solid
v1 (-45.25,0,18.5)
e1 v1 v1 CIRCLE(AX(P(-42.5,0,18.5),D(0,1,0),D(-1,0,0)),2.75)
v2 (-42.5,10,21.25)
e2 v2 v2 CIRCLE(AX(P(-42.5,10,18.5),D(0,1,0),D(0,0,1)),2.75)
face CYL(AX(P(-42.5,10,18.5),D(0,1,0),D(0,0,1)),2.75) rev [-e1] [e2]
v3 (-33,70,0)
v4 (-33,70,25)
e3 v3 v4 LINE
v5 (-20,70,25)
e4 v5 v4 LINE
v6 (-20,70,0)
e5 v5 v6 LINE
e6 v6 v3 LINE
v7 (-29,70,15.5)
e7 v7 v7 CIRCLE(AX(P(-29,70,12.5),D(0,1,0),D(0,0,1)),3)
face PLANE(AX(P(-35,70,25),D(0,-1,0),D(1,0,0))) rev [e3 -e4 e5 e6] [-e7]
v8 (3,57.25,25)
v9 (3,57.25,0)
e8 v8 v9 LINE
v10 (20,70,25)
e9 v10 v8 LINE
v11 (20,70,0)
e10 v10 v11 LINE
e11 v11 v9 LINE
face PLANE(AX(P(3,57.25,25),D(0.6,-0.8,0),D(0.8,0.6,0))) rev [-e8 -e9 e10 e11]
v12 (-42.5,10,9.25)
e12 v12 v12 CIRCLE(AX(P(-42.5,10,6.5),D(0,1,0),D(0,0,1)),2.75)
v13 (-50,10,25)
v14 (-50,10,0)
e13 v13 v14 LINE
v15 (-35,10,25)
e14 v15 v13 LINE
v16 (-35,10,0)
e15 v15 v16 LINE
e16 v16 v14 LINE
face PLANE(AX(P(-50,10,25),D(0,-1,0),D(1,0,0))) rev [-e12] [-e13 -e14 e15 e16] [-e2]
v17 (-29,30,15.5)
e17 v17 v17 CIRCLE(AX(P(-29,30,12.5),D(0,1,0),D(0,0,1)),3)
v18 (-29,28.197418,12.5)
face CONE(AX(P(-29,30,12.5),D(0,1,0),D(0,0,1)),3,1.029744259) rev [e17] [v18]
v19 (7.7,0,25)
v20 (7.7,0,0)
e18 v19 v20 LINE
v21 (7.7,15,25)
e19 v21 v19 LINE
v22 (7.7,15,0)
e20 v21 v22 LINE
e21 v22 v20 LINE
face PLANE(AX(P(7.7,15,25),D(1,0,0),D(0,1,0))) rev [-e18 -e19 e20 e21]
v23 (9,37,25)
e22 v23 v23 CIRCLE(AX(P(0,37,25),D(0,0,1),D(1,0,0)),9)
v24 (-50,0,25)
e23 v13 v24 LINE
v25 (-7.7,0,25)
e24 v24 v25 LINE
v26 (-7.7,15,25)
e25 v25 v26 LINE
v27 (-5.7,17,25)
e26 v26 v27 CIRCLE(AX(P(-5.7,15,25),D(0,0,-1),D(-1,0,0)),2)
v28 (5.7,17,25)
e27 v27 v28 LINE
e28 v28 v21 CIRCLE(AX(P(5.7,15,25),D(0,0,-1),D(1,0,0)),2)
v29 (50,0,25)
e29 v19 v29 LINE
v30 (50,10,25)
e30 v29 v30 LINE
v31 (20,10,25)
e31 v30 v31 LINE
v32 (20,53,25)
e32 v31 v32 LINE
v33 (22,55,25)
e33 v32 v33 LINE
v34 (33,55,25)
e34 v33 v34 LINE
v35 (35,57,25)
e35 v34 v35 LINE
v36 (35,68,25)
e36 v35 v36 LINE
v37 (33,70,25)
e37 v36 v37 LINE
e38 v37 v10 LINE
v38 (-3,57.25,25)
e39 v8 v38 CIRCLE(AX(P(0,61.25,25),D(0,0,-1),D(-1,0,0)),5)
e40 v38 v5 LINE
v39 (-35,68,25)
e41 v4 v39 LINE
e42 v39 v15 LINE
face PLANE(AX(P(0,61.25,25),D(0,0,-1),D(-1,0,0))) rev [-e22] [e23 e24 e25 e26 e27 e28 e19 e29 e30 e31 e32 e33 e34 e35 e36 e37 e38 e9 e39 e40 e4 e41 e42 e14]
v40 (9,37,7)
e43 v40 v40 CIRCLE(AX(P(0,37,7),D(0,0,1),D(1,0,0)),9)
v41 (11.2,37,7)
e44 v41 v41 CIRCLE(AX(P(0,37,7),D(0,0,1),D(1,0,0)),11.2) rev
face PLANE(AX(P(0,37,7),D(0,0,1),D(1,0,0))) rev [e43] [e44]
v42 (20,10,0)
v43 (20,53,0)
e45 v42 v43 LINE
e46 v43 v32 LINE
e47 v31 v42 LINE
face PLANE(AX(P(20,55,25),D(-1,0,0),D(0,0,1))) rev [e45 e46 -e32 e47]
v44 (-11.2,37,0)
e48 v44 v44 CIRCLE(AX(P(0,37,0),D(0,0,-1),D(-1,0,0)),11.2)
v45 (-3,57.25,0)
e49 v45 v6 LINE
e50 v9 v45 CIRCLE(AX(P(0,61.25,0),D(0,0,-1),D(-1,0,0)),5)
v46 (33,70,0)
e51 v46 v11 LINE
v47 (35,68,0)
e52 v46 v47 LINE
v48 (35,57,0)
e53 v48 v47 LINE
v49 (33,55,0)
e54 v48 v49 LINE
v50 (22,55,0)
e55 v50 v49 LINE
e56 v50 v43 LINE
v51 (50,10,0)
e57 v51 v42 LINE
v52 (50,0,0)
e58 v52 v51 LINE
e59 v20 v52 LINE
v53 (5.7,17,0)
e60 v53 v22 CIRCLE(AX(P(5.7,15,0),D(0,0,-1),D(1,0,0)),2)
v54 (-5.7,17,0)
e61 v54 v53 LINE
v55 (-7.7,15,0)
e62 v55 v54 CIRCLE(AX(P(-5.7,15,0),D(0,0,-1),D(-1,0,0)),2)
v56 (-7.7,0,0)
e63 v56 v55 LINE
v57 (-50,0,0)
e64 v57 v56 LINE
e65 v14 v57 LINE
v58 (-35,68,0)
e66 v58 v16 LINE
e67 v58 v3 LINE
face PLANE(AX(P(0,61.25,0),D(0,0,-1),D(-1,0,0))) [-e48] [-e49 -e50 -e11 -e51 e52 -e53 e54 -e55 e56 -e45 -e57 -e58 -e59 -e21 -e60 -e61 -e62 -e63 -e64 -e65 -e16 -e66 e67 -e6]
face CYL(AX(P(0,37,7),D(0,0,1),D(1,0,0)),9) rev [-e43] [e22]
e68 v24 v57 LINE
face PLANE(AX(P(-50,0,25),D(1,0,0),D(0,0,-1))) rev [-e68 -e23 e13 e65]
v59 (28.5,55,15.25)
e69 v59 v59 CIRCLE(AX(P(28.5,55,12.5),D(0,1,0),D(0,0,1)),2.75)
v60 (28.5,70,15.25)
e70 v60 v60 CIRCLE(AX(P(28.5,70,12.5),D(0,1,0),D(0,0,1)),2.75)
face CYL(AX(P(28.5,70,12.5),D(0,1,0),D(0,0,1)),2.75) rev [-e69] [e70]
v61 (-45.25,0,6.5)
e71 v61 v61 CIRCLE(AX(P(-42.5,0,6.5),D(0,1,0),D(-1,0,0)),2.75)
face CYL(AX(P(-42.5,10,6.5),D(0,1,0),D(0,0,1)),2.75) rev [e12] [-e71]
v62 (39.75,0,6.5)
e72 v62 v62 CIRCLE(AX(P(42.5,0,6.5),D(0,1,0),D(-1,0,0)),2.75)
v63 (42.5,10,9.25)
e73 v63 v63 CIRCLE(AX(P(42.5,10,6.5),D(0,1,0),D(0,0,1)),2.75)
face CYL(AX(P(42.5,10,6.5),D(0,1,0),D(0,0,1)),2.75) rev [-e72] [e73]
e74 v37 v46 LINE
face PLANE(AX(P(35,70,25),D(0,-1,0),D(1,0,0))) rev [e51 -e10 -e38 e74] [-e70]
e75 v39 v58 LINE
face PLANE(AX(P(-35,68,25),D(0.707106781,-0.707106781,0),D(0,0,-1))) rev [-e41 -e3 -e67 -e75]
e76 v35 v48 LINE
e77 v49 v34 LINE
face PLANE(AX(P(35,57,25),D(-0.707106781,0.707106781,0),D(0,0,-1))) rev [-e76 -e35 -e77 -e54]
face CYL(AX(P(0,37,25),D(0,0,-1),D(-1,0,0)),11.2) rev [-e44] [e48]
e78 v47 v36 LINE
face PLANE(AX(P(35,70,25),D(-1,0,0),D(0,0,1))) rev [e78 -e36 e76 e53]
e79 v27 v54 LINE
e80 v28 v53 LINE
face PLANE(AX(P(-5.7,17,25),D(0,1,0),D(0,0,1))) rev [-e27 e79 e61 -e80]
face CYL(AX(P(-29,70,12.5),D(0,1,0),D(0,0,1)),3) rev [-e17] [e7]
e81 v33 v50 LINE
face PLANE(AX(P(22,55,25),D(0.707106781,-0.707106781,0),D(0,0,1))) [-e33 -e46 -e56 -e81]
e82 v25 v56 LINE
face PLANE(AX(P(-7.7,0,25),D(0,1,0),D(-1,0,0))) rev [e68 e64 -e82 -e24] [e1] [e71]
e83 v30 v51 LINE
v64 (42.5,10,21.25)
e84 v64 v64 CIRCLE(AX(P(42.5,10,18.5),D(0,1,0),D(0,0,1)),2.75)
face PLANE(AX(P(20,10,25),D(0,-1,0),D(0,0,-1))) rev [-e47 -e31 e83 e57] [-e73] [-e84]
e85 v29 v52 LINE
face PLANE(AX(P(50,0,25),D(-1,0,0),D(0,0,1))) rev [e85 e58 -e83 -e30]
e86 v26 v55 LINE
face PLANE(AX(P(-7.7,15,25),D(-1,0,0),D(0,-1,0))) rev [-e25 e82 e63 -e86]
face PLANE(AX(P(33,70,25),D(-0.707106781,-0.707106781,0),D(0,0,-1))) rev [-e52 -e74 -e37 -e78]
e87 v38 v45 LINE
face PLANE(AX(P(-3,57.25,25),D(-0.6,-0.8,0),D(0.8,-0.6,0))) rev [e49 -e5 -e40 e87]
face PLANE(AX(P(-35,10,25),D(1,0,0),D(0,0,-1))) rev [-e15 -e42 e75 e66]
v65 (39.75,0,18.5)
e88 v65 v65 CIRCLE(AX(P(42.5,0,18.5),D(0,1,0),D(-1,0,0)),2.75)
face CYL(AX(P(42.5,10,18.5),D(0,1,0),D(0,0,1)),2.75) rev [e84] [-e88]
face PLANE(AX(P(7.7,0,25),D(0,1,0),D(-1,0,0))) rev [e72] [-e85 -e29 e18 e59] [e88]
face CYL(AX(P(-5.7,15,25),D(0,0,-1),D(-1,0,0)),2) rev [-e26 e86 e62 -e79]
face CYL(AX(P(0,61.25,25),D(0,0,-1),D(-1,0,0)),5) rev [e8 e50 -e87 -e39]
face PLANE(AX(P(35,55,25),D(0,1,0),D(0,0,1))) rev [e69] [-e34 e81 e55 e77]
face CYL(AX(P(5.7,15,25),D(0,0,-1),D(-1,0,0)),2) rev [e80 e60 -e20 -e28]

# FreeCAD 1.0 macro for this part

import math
import FreeCAD as App
import Part
import Sketcher
Q = App.Units.Quantity


def edges_at(feature, points):
    """Names of the edges that pass closest to the given points."""
    edges = feature.Shape.Edges
    near = lambda p: min(range(len(edges)), key=lambda i: edges[i].distToShape(Part.Vertex(*p))[0])
    return sorted({f"Edge{near(p) + 1}" for p in points})

doc = App.newDocument("Part")
body = doc.addObject("PartDesign::Body", "Body")

sketch1 = doc.addObject("Sketcher::SketchObject", "Sketch")
body.addObject(sketch1)
sketch1.AttachmentSupport = (doc.XY_Plane, [""])
sketch1.MapMode = "FlatFace"
sketch1.addGeometry(Part.LineSegment(App.Vector(50, 0, 0), App.Vector(50, 10, 0)), False)
sketch1.addGeometry(Part.LineSegment(App.Vector(50, 10, 0), App.Vector(20, 10, 0)), False)
sketch1.addGeometry(Part.LineSegment(App.Vector(20, 10, 0), App.Vector(20, 55, 0)), False)
sketch1.addGeometry(Part.LineSegment(App.Vector(20, 55, 0), App.Vector(35, 55, 0)), False)
sketch1.addGeometry(Part.LineSegment(App.Vector(35, 55, 0), App.Vector(35, 70, 0)), False)
sketch1.addGeometry(Part.LineSegment(App.Vector(35, 70, 0), App.Vector(20, 70, 0)), False)
sketch1.addGeometry(Part.LineSegment(App.Vector(20, 70, 0), App.Vector(3, 57.2, 0)), False)
sketch1.addGeometry(Part.ArcOfCircle(Part.Circle(App.Vector(0, 61.2, 0), App.Vector(0, 0, 1), 5), math.radians(-127), math.radians(-53)), False)
sketch1.addGeometry(Part.LineSegment(App.Vector(-3, 57.2, 0), App.Vector(-20, 70, 0)), False)
sketch1.addGeometry(Part.LineSegment(App.Vector(-20, 70, 0), App.Vector(-35, 70, 0)), False)
sketch1.addGeometry(Part.LineSegment(App.Vector(-35, 70, 0), App.Vector(-35, 10, 0)), False)
sketch1.addGeometry(Part.LineSegment(App.Vector(-35, 10, 0), App.Vector(-50, 10, 0)), False)
sketch1.addGeometry(Part.LineSegment(App.Vector(-50, 10, 0), App.Vector(-50, 0, 0)), False)
sketch1.addGeometry(Part.LineSegment(App.Vector(-50, 0, 0), App.Vector(-7.7, 0, 0)), False)
sketch1.addGeometry(Part.LineSegment(App.Vector(-7.7, 0, 0), App.Vector(-7.7, 15, 0)), False)
sketch1.addGeometry(Part.ArcOfCircle(Part.Circle(App.Vector(-5.7, 15, 0), App.Vector(0, 0, 1), 2), math.radians(90), math.radians(180)), False)
sketch1.addGeometry(Part.LineSegment(App.Vector(-5.7, 17, 0), App.Vector(5.7, 17, 0)), False)
sketch1.addGeometry(Part.ArcOfCircle(Part.Circle(App.Vector(5.7, 15, 0), App.Vector(0, 0, 1), 2), math.radians(0), math.radians(90)), False)
sketch1.addGeometry(Part.LineSegment(App.Vector(7.7, 15, 0), App.Vector(7.7, 0, 0)), False)
sketch1.addGeometry(Part.LineSegment(App.Vector(7.7, 0, 0), App.Vector(50, 0, 0)), False)
sketch1.addConstraint(Sketcher.Constraint("Coincident", 0, 2, 1, 1))
sketch1.addConstraint(Sketcher.Constraint("Coincident", 1, 2, 2, 1))
sketch1.addConstraint(Sketcher.Constraint("Coincident", 2, 2, 3, 1))
sketch1.addConstraint(Sketcher.Constraint("Coincident", 3, 2, 4, 1))
sketch1.addConstraint(Sketcher.Constraint("Coincident", 4, 2, 5, 1))
sketch1.addConstraint(Sketcher.Constraint("Coincident", 5, 2, 6, 1))
sketch1.addConstraint(Sketcher.Constraint("Tangent", 6, 2, 7, 2))
sketch1.addConstraint(Sketcher.Constraint("Tangent", 7, 1, 8, 1))
sketch1.addConstraint(Sketcher.Constraint("Coincident", 8, 2, 9, 1))
sketch1.addConstraint(Sketcher.Constraint("Coincident", 9, 2, 10, 1))
sketch1.addConstraint(Sketcher.Constraint("Coincident", 10, 2, 11, 1))
sketch1.addConstraint(Sketcher.Constraint("Coincident", 11, 2, 12, 1))
sketch1.addConstraint(Sketcher.Constraint("Coincident", 12, 2, 13, 1))
sketch1.addConstraint(Sketcher.Constraint("Coincident", 13, 2, 14, 1))
sketch1.addConstraint(Sketcher.Constraint("Tangent", 14, 2, 15, 2))
sketch1.addConstraint(Sketcher.Constraint("Tangent", 15, 1, 16, 1))
sketch1.addConstraint(Sketcher.Constraint("Tangent", 16, 2, 17, 2))
sketch1.addConstraint(Sketcher.Constraint("Tangent", 17, 1, 18, 1))
sketch1.addConstraint(Sketcher.Constraint("Coincident", 18, 2, 19, 1))
sketch1.addConstraint(Sketcher.Constraint("Coincident", 19, 2, 0, 1))
sketch1.addConstraint(Sketcher.Constraint("Vertical", 0))
sketch1.addConstraint(Sketcher.Constraint("Horizontal", 1))
sketch1.addConstraint(Sketcher.Constraint("Vertical", 2))
sketch1.addConstraint(Sketcher.Constraint("Horizontal", 3))
sketch1.addConstraint(Sketcher.Constraint("Vertical", 4))
sketch1.addConstraint(Sketcher.Constraint("Horizontal", 5))
sketch1.addConstraint(Sketcher.Constraint("Horizontal", 9))
sketch1.addConstraint(Sketcher.Constraint("Vertical", 10))
sketch1.addConstraint(Sketcher.Constraint("Horizontal", 11))
sketch1.addConstraint(Sketcher.Constraint("Vertical", 12))
sketch1.addConstraint(Sketcher.Constraint("Horizontal", 13))
sketch1.addConstraint(Sketcher.Constraint("Vertical", 14))
sketch1.addConstraint(Sketcher.Constraint("Horizontal", 16))
sketch1.addConstraint(Sketcher.Constraint("Vertical", 18))
sketch1.addConstraint(Sketcher.Constraint("Horizontal", 19))
sketch1.addConstraint(Sketcher.Constraint("Equal", 15, 17))
sketch1.addConstraint(Sketcher.Constraint("Symmetric", 13, 2, 18, 2, -1, 1))
sketch1.addConstraint(Sketcher.Constraint("Symmetric", 6, 2, 7, 1, -2))
sketch1.addConstraint(Sketcher.Constraint("Symmetric", 4, 2, 9, 2, -2))
sketch1.addConstraint(Sketcher.Constraint("Symmetric", 0, 2, 11, 2, -2))
sketch1.addConstraint(Sketcher.Constraint("PointOnObject", 12, 2, -1))
sketch1.addConstraint(Sketcher.Constraint("Vertical", 2, 2, 5, 2))
sketch1.addConstraint(Sketcher.Constraint("Equal", 9, 11))
sketch1.addConstraint(Sketcher.Constraint("Equal", 11, 4))
sketch1.addConstraint(Sketcher.Constraint("Equal", 4, 14))
sketch1.addConstraint(Sketcher.Constraint("Radius", 7, Q("5 mm")))
sketch1.addConstraint(Sketcher.Constraint("Radius", 15, Q("2 mm")))
sketch1.addConstraint(Sketcher.Constraint("DistanceX", 1, 2, 1, 1, Q("30 mm")))
sketch1.addConstraint(Sketcher.Constraint("DistanceY", 0, 1, 0, 2, Q("10 mm")))
sketch1.addConstraint(Sketcher.Constraint("DistanceY", 2, 1, 2, 2, Q("45 mm")))
sketch1.addConstraint(Sketcher.Constraint("DistanceX", 13, 1, 13, 2, Q("42.3 mm")))
sketch1.addConstraint(Sketcher.Constraint("DistanceX", 16, 1, 16, 2, Q("11.4 mm")))
sketch1.addConstraint(Sketcher.Constraint("DistanceX", -1, 1, 6, 2, Q("3 mm")))
pad1 = doc.addObject("PartDesign::Pad", "Pad")
body.addObject(pad1)
pad1.Profile = sketch1
pad1.Length = 25

sketch2 = doc.addObject("Sketcher::SketchObject", "Sketch001")
body.addObject(sketch2)
sketch2.AttachmentSupport = (doc.XY_Plane, [""])
sketch2.MapMode = "FlatFace"
sketch2.addGeometry(Part.Circle(App.Vector(0, 37, 0), App.Vector(0, 0, 1), 11), False)
sketch2.addConstraint(Sketcher.Constraint("PointOnObject", 0, 3, -2))
sketch2.addConstraint(Sketcher.Constraint("Diameter", 0, Q("22.4 mm")))
sketch2.addConstraint(Sketcher.Constraint("DistanceY", -1, 1, 0, 3, Q("37 mm")))
pocket1 = doc.addObject("PartDesign::Pocket", "Pocket")
body.addObject(pocket1)
pocket1.Profile = sketch2
pocket1.Type = "ThroughAll"
pocket1.Reversed = True
doc.recompute()

chamfer = doc.addObject("PartDesign::Chamfer", "Chamfer")
body.addObject(chamfer)
chamfer.Base = (pocket1, edges_at(pocket1, [
    (-35, 70, 12.5),
    (35, 70, 12.5),
    (35, 55, 12.5),
    (20, 55, 12.5),
]))
chamfer.Size = 2

sketch3 = doc.addObject("Sketcher::SketchObject", "Sketch002")
body.addObject(sketch3)
sketch3.AttachmentSupport = (doc.XY_Plane, [""])
sketch3.MapMode = "FlatFace"
sketch3.AttachmentOffset = App.Placement(App.Vector(0, 0, 25), App.Rotation())
sketch3.addGeometry(Part.Circle(App.Vector(0, 37, 0), App.Vector(0, 0, 1), 11), False)
sketch3.addGeometry(Part.Circle(App.Vector(0, 37, 0), App.Vector(0, 0, 1), 9), False)
sketch3.addConstraint(Sketcher.Constraint("Coincident", 1, 3, 0, 3))
sketch3.addConstraint(Sketcher.Constraint("PointOnObject", 0, 3, -2))
sketch3.addConstraint(Sketcher.Constraint("Diameter", 1, Q("18 mm")))
sketch3.addConstraint(Sketcher.Constraint("Diameter", 0, Q("22.8 mm")))
sketch3.addConstraint(Sketcher.Constraint("DistanceY", -1, 1, 0, 3, Q("37 mm")))
pad2 = doc.addObject("PartDesign::Pad", "Pad001")
body.addObject(pad2)
pad2.Profile = sketch3
pad2.Length = 18
pad2.Reversed = True

sketch4 = doc.addObject("Sketcher::SketchObject", "Sketch003")
body.addObject(sketch4)
sketch4.AttachmentSupport = (doc.XZ_Plane, [""])
sketch4.MapMode = "FlatFace"
sketch4.AttachmentOffset = App.Placement(App.Vector(0, 0, -10), App.Rotation())
sketch4.addGeometry(Part.Circle(App.Vector(42.5, 18.5, 0), App.Vector(0, 0, 1), 2.8), False)
sketch4.addGeometry(Part.Circle(App.Vector(42.5, 6.5, 0), App.Vector(0, 0, 1), 2.8), False)
sketch4.addGeometry(Part.Circle(App.Vector(-42.5, 18.5, 0), App.Vector(0, 0, 1), 2.8), False)
sketch4.addGeometry(Part.Circle(App.Vector(-42.5, 6.5, 0), App.Vector(0, 0, 1), 2.8), False)
sketch4.addConstraint(Sketcher.Constraint("Equal", 0, 1))
sketch4.addConstraint(Sketcher.Constraint("Equal", 1, 2))
sketch4.addConstraint(Sketcher.Constraint("Equal", 2, 3))
sketch4.addConstraint(Sketcher.Constraint("Symmetric", 0, 3, 2, 3, -2))
sketch4.addConstraint(Sketcher.Constraint("Symmetric", 1, 3, 3, 3, -2))
sketch4.addConstraint(Sketcher.Constraint("Vertical", 0, 3, 1, 3))
sketch4.addConstraint(Sketcher.Constraint("Diameter", 0, Q("5.5 mm")))
sketch4.addConstraint(Sketcher.Constraint("DistanceY", 1, 3, 0, 3, Q("12 mm")))
sketch4.addConstraint(Sketcher.Constraint("DistanceX", 2, 3, 0, 3, Q("85 mm")))
sketch4.addConstraint(Sketcher.Constraint("DistanceY", -1, 1, 0, 3, Q("18.5 mm")))
doc.recompute()
hole = doc.addObject("PartDesign::Hole", "Hole")
body.addObject(hole)
hole.Profile = sketch4
hole.ThreadType = "None"
hole.Diameter = 5.5
hole.DepthType = "ThroughAll"
hole.Reversed = True

sketch5 = doc.addObject("Sketcher::SketchObject", "Sketch004")
body.addObject(sketch5)
sketch5.AttachmentSupport = (doc.XZ_Plane, [""])
sketch5.MapMode = "FlatFace"
sketch5.AttachmentOffset = App.Placement(App.Vector(0, 0, -70), App.Rotation())
sketch5.addGeometry(Part.Circle(App.Vector(28.5, 12.5, 0), App.Vector(0, 0, 1), 2.8), False)
sketch5.addConstraint(Sketcher.Constraint("Diameter", 0, Q("5.5 mm")))
sketch5.addConstraint(Sketcher.Constraint("DistanceX", -1, 1, 0, 3, Q("28.5 mm")))
sketch5.addConstraint(Sketcher.Constraint("DistanceY", -1, 1, 0, 3, Q("12.5 mm")))
doc.recompute()
hole2 = doc.addObject("PartDesign::Hole", "Hole001")
body.addObject(hole2)
hole2.Profile = sketch5
hole2.ThreadType = "None"
hole2.Diameter = 5.5
hole2.DepthType = "Dimension"
hole2.Depth = 15
hole2.DrillPoint = "Flat"
hole2.Reversed = True

sketch6 = doc.addObject("Sketcher::SketchObject", "Sketch005")
body.addObject(sketch6)
sketch6.AttachmentSupport = (doc.XZ_Plane, [""])
sketch6.MapMode = "FlatFace"
sketch6.AttachmentOffset = App.Placement(App.Vector(0, 0, -70), App.Rotation())
sketch6.addGeometry(Part.Circle(App.Vector(-29, 12.5, 0), App.Vector(0, 0, 1), 3), False)
sketch6.addConstraint(Sketcher.Constraint("Diameter", 0, Q("6 mm")))
sketch6.addConstraint(Sketcher.Constraint("DistanceX", 0, 3, -1, 1, Q("29 mm")))
sketch6.addConstraint(Sketcher.Constraint("DistanceY", -1, 1, 0, 3, Q("12.5 mm")))
doc.recompute()
hole3 = doc.addObject("PartDesign::Hole", "Hole002")
body.addObject(hole3)
hole3.Profile = sketch6
hole3.ThreadType = "None"
hole3.Diameter = 6
hole3.DepthType = "Dimension"
hole3.Depth = 40
hole3.DrillPoint = "Angled"
hole3.DrillPointAngle = 118
hole3.Reversed = True

doc.recompute()
